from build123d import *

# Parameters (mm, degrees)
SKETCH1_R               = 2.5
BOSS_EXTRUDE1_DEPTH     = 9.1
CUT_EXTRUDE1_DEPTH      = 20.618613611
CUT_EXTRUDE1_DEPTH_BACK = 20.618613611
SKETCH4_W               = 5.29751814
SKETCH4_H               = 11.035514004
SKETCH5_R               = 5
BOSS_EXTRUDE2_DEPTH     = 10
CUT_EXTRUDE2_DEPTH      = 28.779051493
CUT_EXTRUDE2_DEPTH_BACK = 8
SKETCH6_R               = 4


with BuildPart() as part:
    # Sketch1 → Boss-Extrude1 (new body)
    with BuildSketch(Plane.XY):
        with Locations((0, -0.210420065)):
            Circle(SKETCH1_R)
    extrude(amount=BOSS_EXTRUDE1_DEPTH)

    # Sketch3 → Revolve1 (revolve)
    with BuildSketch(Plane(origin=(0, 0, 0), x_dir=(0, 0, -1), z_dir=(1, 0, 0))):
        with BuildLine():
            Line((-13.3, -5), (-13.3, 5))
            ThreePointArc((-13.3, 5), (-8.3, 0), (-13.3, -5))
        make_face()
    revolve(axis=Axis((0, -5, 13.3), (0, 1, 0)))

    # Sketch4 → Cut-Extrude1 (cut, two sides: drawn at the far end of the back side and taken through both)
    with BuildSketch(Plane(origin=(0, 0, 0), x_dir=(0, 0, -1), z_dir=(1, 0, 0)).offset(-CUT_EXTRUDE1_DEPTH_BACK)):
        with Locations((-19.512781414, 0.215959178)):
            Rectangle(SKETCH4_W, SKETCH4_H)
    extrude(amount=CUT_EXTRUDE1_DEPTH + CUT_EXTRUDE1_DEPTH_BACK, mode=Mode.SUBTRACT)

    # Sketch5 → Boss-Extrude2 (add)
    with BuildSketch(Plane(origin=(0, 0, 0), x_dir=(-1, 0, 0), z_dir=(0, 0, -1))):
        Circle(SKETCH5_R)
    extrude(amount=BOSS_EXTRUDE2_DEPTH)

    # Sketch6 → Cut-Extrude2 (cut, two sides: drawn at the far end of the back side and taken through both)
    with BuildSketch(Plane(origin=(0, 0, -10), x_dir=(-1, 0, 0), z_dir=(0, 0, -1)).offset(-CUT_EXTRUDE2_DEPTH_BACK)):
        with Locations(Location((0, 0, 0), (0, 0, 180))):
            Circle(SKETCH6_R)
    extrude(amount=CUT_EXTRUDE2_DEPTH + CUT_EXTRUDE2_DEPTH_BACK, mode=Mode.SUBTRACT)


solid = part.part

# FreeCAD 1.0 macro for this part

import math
import FreeCAD as App
import Part
import Sketcher

V = App.Vector
Q = App.Units.Quantity


def add_polygon(sketch, points):
    """Adds a closed chain of lines whose ends are joined by coincident constraints."""
    first, n = sketch.GeometryCount, len(points)
    for a, b in zip(points, points[1:] + points[:1]):
        sketch.addGeometry(Part.LineSegment(App.Vector(*a, 0), App.Vector(*b, 0)), False)
    for i in range(n):
        sketch.addConstraint(Sketcher.Constraint("Coincident", first + i, 2, first + (i + 1) % n, 1))

doc = App.newDocument("Part")
body = doc.addObject("PartDesign::Body", "Body")

# Sketch on XY plane
sketch1 = doc.addObject("Sketcher::SketchObject", "Sketch")
body.addObject(sketch1)
sketch1.AttachmentSupport = (doc.XY_Plane, [""])
sketch1.MapMode = "FlatFace"
sketch1.addGeometry(Part.Circle(V(0, -0.2, 0), V(0, 0, 1), 2.5), False)
sketch1.addConstraint([
    Sketcher.Constraint("PointOnObject", 0, 3, -2),
    Sketcher.Constraint("Diameter", 0, Q("5 mm")),
    Sketcher.Constraint("DistanceY", 0, 3, -1, 1, Q("0.21042 mm")),
])
pad1 = doc.addObject("PartDesign::Pad", "Pad")
body.addObject(pad1)
pad1.Profile = sketch1
pad1.Length = 9.1

# Sketch on YZ plane
sketch2 = doc.addObject("Sketcher::SketchObject", "Sketch001")
body.addObject(sketch2)
sketch2.AttachmentSupport = (doc.YZ_Plane, [""])
sketch2.MapMode = "FlatFace"
sketch2.addGeometry([
    Part.LineSegment(V(5, 13, 0), V(-5, 13, 0)),
    Part.ArcOfCircle(Part.Circle(V(0, 13, 0), V(0, 0, 1), 5), math.radians(180), math.radians(360)),
], False)
sketch2.addGeometry(Part.LineSegment(V(-5, 13, 0), V(5, 13, 0)), True)  # axis
sketch2.addConstraint([
    Sketcher.Constraint("Coincident", 0, 1, 1, 2),
    Sketcher.Constraint("Coincident", 1, 1, 0, 2),
    Sketcher.Constraint("Horizontal", 0),
    Sketcher.Constraint("Horizontal", 2),
    Sketcher.Constraint("Coincident", 2, 1, 1, 1),
    Sketcher.Constraint("PointOnObject", 1, 3, -2),
    Sketcher.Constraint("Horizontal", 1, 3, 0, 1),
    Sketcher.Constraint("Equal", 0, 2),
    Sketcher.Constraint("Radius", 1, Q("5 mm")),
    Sketcher.Constraint("DistanceY", -1, 1, 1, 3, Q("13.3 mm")),
])
revolution = doc.addObject("PartDesign::Revolution", "Revolution")
body.addObject(revolution)
revolution.Profile = sketch2
revolution.ReferenceAxis = (sketch2, ["Axis0"])
revolution.Angle = 360

# Sketch on YZ plane
sketch3 = doc.addObject("Sketcher::SketchObject", "Sketch002")
body.addObject(sketch3)
sketch3.AttachmentSupport = (doc.YZ_Plane, [""])
sketch3.MapMode = "FlatFace"
add_polygon(sketch3, [(6, 22), (-5, 22), (-5, 17), (6, 17)])  # lines 0-3
sketch3.addConstraint([
    Sketcher.Constraint("Horizontal", 0),
    Sketcher.Constraint("Vertical", 1),
    Sketcher.Constraint("Horizontal", 2),
    Sketcher.Constraint("Vertical", 3),
    Sketcher.Constraint("DistanceY", 1, 2, 1, 1, Q("5.297518 mm")),
    Sketcher.Constraint("DistanceX", 0, 2, 0, 1, Q("11.035514 mm")),
    Sketcher.Constraint("DistanceY", -1, 1, 0, 2, Q("22.16154 mm")),
    Sketcher.Constraint("DistanceX", 0, 2, -1, 1, Q("5.301798 mm")),
])
pocket1 = doc.addObject("PartDesign::Pocket", "Pocket")
body.addObject(pocket1)
pocket1.Profile = sketch3
pocket1.Type = "ThroughAll"
pocket1.Midplane = True

# Sketch on XY plane
sketch4 = doc.addObject("Sketcher::SketchObject", "Sketch003")
body.addObject(sketch4)
sketch4.AttachmentSupport = (doc.XY_Plane, [""])
sketch4.MapMode = "FlatFace"
sketch4.addGeometry(Part.Circle(V(0, 0, 0), V(0, 0, 1), 5), False)
sketch4.addConstraint([
    Sketcher.Constraint("Coincident", 0, 3, -1, 1),
    Sketcher.Constraint("Diameter", 0, Q("10 mm")),
])
pad2 = doc.addObject("PartDesign::Pad", "Pad001")
body.addObject(pad2)
pad2.Profile = sketch4
pad2.Length = 10
pad2.Reversed = True

# Sketch on XY plane
sketch5 = doc.addObject("Sketcher::SketchObject", "Sketch004")
body.addObject(sketch5)
sketch5.AttachmentSupport = (doc.XY_Plane, [""])
sketch5.MapMode = "FlatFace"
sketch5.AttachmentOffset = App.Placement(V(0, 0, -10), App.Rotation())
sketch5.addGeometry(Part.Circle(V(0, 0, 0), V(0, 0, 1), 4), False)
sketch5.addConstraint([
    Sketcher.Constraint("Coincident", 0, 3, -1, 1),
    Sketcher.Constraint("Diameter", 0, Q("8 mm")),
])
pocket2 = doc.addObject("PartDesign::Pocket", "Pocket001")
body.addObject(pocket2)
pocket2.Profile = sketch5
pocket2.Type = "TwoLengths"
pocket2.Length = 28.779051
pocket2.Length2 = 8

doc.recompute()
